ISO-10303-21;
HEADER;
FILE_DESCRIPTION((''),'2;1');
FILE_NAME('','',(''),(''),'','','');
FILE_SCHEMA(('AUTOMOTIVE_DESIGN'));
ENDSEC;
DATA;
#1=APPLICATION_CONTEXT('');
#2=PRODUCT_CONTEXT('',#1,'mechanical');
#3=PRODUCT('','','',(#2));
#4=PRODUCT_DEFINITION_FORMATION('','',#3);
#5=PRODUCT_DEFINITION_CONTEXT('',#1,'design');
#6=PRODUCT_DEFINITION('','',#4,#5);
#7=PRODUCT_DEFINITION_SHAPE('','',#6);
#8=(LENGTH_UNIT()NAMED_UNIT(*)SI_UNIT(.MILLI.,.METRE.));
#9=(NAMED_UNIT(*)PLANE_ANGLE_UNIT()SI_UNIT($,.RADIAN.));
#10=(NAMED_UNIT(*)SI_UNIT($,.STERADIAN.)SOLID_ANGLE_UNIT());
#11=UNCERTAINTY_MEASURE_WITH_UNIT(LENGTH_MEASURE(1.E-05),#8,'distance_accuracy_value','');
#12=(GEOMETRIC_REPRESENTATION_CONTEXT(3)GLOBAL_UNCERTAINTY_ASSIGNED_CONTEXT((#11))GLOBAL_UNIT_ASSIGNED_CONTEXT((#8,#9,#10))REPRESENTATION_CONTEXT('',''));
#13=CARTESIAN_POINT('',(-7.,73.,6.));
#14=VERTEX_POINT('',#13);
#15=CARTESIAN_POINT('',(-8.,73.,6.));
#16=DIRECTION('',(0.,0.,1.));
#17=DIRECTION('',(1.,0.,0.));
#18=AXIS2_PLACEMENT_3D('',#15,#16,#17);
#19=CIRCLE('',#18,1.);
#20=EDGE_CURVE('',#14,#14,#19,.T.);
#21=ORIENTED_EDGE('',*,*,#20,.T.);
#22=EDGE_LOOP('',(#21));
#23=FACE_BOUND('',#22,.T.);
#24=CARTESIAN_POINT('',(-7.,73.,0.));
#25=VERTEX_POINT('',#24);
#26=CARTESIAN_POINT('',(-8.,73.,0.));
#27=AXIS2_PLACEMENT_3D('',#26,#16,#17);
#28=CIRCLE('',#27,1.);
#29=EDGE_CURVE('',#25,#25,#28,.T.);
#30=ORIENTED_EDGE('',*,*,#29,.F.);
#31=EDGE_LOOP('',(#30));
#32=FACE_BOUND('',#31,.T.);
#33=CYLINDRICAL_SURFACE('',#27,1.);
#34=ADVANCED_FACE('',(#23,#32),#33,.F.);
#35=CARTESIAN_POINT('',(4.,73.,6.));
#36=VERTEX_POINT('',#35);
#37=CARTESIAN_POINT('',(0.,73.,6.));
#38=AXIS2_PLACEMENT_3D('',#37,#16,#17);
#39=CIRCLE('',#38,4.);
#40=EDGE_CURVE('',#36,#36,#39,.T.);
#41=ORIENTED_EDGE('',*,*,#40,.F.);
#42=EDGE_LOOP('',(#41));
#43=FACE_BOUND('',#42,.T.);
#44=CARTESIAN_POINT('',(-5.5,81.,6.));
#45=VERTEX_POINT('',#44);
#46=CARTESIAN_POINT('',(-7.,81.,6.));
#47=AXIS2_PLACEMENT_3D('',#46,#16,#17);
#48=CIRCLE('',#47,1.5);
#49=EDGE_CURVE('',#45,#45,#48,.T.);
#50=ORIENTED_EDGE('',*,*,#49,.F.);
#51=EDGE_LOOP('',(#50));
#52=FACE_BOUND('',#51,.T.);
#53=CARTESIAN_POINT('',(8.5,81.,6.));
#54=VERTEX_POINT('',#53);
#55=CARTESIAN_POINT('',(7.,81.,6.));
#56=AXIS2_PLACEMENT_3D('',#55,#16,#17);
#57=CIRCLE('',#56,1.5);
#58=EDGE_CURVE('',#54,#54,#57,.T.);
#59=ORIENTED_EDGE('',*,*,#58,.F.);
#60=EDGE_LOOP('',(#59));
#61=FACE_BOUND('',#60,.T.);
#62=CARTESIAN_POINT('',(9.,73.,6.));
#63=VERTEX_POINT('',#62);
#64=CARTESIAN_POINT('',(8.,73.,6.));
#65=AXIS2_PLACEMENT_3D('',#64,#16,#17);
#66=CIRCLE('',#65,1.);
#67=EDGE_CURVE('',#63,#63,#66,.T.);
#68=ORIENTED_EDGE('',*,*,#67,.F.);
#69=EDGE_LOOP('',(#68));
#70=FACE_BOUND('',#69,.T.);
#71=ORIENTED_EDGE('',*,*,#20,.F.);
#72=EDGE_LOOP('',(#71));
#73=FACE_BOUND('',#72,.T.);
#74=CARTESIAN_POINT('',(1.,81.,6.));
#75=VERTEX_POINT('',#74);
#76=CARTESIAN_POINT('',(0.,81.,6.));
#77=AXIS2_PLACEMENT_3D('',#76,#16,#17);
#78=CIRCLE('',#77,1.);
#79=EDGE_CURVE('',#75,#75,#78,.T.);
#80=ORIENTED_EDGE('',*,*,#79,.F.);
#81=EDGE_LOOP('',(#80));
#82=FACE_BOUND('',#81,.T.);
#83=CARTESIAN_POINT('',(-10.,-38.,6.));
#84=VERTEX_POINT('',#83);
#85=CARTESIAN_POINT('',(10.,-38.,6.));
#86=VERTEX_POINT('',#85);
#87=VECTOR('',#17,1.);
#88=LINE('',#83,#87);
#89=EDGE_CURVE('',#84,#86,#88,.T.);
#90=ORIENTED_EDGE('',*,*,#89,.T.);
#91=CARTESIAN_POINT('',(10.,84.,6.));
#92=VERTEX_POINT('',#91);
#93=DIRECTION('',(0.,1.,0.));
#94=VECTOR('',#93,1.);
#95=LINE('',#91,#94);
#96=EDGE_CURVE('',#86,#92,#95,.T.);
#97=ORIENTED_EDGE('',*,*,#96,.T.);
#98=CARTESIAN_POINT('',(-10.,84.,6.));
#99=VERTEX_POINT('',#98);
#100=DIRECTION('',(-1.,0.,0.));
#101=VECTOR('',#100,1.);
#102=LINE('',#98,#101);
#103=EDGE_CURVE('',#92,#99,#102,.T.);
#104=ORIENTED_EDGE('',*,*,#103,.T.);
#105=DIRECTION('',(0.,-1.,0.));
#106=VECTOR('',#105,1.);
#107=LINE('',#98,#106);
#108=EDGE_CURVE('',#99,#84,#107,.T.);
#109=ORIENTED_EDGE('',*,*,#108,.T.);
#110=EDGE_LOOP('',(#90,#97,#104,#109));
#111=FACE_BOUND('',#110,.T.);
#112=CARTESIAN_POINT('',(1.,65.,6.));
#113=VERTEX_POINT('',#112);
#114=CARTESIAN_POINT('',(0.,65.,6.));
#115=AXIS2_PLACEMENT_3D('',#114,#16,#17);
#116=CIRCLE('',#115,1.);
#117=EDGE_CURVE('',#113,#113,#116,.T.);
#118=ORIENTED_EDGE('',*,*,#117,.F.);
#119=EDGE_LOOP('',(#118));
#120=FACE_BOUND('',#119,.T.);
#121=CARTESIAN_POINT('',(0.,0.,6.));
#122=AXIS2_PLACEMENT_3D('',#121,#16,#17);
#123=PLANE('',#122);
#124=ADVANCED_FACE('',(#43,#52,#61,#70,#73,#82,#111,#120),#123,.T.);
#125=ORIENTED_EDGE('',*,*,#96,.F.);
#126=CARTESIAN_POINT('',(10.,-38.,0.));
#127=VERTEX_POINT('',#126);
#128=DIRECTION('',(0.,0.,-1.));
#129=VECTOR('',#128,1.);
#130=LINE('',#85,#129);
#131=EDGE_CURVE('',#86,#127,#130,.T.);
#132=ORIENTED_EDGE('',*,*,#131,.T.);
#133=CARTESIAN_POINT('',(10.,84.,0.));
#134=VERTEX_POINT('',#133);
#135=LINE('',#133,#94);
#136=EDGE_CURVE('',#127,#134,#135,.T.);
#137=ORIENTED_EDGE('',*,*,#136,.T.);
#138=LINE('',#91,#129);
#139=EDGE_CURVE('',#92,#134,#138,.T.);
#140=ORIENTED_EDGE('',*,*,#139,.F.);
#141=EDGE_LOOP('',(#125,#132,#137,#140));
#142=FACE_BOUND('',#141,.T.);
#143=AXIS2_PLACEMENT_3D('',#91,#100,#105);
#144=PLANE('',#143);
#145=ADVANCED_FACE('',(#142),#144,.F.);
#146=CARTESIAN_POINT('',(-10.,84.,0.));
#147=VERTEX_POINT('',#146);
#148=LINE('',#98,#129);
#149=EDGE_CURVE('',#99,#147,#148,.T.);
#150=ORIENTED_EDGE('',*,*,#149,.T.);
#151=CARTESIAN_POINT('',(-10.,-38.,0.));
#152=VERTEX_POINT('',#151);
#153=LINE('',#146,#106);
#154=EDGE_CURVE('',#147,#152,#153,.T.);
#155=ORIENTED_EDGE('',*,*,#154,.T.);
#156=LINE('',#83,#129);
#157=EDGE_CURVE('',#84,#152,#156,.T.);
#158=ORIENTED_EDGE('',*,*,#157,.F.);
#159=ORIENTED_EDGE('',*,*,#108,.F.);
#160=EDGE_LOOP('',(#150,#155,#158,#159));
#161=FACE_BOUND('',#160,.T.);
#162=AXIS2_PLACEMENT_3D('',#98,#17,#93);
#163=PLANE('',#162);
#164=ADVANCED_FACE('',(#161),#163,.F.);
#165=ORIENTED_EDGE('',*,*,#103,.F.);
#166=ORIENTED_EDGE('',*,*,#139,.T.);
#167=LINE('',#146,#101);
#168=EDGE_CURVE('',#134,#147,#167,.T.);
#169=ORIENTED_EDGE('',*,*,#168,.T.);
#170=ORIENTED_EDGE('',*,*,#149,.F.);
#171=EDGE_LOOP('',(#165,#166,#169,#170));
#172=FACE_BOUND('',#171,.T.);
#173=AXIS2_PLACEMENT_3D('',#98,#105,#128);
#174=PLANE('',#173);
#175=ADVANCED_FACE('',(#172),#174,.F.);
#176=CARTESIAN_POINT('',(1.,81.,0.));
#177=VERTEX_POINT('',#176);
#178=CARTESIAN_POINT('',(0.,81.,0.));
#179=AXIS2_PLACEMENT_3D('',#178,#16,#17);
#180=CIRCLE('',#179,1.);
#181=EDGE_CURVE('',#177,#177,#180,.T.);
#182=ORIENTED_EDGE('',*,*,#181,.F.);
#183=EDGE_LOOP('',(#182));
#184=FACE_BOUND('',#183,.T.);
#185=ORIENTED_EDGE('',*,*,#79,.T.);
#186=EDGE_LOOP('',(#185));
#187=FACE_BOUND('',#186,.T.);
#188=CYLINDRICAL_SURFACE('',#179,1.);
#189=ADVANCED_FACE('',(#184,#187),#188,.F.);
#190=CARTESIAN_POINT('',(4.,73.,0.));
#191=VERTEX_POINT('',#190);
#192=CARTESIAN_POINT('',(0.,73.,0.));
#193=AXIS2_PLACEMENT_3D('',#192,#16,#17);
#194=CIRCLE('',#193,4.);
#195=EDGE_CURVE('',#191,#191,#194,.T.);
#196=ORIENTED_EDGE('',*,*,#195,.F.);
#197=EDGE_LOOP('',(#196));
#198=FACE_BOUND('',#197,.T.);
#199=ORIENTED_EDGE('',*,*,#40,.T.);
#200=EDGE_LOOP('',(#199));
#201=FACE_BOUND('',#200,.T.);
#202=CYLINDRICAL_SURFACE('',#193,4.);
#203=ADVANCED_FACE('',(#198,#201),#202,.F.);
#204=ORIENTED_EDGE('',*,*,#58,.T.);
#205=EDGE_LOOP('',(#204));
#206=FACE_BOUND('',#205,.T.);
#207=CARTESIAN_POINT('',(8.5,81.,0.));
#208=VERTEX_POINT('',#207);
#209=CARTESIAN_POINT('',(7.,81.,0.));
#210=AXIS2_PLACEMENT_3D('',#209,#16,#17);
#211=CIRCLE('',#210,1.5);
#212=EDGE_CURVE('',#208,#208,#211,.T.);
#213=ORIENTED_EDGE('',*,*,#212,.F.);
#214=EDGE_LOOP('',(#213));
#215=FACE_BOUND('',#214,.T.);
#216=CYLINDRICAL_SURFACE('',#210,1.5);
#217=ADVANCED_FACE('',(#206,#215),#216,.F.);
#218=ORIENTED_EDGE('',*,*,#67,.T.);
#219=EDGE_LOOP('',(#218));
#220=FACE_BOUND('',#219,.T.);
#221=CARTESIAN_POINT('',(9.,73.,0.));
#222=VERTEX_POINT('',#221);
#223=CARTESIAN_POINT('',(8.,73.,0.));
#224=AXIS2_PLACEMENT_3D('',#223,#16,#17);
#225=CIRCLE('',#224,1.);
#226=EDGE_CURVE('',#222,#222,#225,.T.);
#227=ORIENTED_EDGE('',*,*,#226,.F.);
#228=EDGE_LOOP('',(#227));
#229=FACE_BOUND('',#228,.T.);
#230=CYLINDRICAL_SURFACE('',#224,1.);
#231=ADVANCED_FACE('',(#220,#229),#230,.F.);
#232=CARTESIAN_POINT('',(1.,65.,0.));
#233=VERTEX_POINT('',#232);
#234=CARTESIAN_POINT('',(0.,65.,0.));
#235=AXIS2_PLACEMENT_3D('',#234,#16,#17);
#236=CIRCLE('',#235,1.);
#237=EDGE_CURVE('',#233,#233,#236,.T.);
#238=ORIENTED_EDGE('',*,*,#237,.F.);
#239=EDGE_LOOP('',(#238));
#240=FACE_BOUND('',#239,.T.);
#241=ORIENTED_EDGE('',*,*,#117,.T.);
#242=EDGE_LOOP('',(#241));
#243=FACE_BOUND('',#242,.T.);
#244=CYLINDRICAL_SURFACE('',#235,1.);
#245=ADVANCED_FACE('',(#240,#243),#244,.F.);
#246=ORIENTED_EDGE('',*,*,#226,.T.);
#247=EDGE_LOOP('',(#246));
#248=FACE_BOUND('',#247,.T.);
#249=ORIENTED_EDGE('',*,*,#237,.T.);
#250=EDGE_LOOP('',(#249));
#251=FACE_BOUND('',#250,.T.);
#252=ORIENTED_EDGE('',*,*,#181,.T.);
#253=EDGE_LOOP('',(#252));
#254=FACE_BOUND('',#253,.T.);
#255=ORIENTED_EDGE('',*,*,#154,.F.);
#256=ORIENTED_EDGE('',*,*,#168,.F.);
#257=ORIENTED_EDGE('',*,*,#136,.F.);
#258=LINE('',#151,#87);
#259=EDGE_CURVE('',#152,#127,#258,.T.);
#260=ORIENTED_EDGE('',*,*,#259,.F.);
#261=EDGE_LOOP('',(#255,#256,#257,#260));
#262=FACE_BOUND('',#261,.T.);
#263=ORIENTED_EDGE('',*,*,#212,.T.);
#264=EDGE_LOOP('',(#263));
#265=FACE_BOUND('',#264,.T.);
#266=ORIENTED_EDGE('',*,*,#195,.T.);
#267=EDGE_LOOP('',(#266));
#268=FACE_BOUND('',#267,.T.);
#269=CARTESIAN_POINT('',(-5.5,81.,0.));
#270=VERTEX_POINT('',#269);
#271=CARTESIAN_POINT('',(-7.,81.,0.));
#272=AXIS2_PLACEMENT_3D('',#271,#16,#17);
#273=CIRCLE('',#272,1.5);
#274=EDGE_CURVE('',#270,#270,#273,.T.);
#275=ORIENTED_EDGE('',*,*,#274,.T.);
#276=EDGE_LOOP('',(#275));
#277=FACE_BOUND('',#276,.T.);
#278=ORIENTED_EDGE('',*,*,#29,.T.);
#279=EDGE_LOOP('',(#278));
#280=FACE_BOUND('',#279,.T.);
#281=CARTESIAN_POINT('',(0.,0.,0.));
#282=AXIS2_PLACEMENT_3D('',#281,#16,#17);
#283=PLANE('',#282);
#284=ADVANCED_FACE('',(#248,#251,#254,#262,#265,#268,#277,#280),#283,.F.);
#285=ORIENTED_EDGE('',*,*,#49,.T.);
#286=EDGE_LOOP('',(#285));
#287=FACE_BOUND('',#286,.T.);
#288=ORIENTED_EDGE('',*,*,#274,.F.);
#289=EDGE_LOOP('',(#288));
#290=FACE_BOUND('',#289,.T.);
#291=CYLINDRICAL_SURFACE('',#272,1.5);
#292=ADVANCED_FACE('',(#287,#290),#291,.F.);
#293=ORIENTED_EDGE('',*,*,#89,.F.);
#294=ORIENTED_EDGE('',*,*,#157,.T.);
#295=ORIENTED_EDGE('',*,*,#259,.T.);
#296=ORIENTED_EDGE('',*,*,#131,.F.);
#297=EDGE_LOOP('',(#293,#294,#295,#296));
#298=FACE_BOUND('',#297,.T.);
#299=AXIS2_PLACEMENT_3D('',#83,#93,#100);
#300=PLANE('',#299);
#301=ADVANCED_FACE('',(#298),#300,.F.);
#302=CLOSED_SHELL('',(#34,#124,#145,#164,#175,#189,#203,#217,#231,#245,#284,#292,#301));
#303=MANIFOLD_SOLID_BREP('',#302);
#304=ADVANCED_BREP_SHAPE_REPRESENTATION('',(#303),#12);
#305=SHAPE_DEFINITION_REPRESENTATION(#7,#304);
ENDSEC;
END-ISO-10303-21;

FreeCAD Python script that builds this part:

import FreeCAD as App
import Part
import Sketcher


def add_polygon(sketch, points):
    """Adds a closed chain of lines whose ends are joined by coincident constraints."""
    first, n = sketch.GeometryCount, len(points)
    for a, b in zip(points, points[1:] + points[:1]):
        sketch.addGeometry(Part.LineSegment(App.Vector(*a, 0), App.Vector(*b, 0)), False)
    for i in range(n):
        sketch.addConstraint(Sketcher.Constraint("Coincident", first + i, 2, first + (i + 1) % n, 1))

doc = App.newDocument("Part")
body = doc.addObject("PartDesign::Body", "Body")

sketch1 = body.newObject("Sketcher::SketchObject", "Sketch")
sketch1.AttachmentSupport = (doc.getObject("XY_Plane"), [""])
sketch1.MapMode = "FlatFace"
add_polygon(sketch1, [(-10, 84), (-10, -38), (10, -38), (10, 84)])
sketch1.addConstraint([
    Sketcher.Constraint("Vertical", 0),
    Sketcher.Constraint("Horizontal", 1),
    Sketcher.Constraint("Vertical", 2),
    Sketcher.Constraint("Horizontal", 3),
    Sketcher.Constraint("DistanceX", 1, 1, 1, 2, 20.0),
    Sketcher.Constraint("DistanceY", 0, 2, 0, 1, 122.0),
    Sketcher.Constraint("DistanceX", 0, 2, -1, 1, 10.0),
    Sketcher.Constraint("DistanceY", 0, 2, -1, 1, 38.0),
])
pad1 = body.newObject("PartDesign::Pad", "Pad")
pad1.Profile = sketch1
pad1.Length = 6

sketch2 = body.newObject("Sketcher::SketchObject", "Sketch001")
sketch2.AttachmentSupport = (doc.getObject("XY_Plane"), [""])
sketch2.MapMode = "FlatFace"
sketch2.AttachmentOffset = App.Placement(App.Vector(0, 0, 6), App.Rotation())
sketch2.addGeometry([
    Part.Circle(App.Vector(0, 73, 0), App.Vector(0, 0, 1), 4),
    Part.Circle(App.Vector(0, 81, 0), App.Vector(0, 0, 1), 1),
    Part.Circle(App.Vector(-8, 73, 0), App.Vector(0, 0, 1), 1),
    Part.Circle(App.Vector(0, 65, 0), App.Vector(0, 0, 1), 1),
    Part.Circle(App.Vector(8, 73, 0), App.Vector(0, 0, 1), 1),
    Part.Circle(App.Vector(-7, 81, 0), App.Vector(0, 0, 1), 1.5),
    Part.Circle(App.Vector(7, 81, 0), App.Vector(0, 0, 1), 1.5),
], False)
sketch2.addConstraint([
    Sketcher.Constraint("Equal", 1, 2),
    Sketcher.Constraint("Equal", 2, 3),
    Sketcher.Constraint("Equal", 3, 4),
    Sketcher.Constraint("Equal", 5, 6),
    Sketcher.Constraint("Symmetric", 2, 3, 4, 3, -2),
    Sketcher.Constraint("Symmetric", 5, 3, 6, 3, -2),
    Sketcher.Constraint("PointOnObject", 0, 3, -2),
    Sketcher.Constraint("PointOnObject", 1, 3, -2),
    Sketcher.Constraint("PointOnObject", 3, 3, -2),
    Sketcher.Constraint("Horizontal", 0, 3, 2, 3),
    Sketcher.Constraint("Horizontal", 1, 3, 5, 3),
    Sketcher.Constraint("Diameter", 0, 8.0),
    Sketcher.Constraint("Diameter", 1, 2.0),
    Sketcher.Constraint("Diameter", 5, 3.0),
    Sketcher.Constraint("DistanceY", -1, 1, 0, 3, 73.0),
    Sketcher.Constraint("DistanceY", -1, 1, 1, 3, 81.0),
    Sketcher.Constraint("DistanceX", 2, 3, -1, 1, 8.0),
    Sketcher.Constraint("DistanceY", -1, 1, 3, 3, 65.0),
    Sketcher.Constraint("DistanceX", 5, 3, -1, 1, 7.0),
])
pocket1 = body.newObject("PartDesign::Pocket", "Pocket")
pocket1.Profile = sketch2
pocket1.Length = 6

doc.recompute()
